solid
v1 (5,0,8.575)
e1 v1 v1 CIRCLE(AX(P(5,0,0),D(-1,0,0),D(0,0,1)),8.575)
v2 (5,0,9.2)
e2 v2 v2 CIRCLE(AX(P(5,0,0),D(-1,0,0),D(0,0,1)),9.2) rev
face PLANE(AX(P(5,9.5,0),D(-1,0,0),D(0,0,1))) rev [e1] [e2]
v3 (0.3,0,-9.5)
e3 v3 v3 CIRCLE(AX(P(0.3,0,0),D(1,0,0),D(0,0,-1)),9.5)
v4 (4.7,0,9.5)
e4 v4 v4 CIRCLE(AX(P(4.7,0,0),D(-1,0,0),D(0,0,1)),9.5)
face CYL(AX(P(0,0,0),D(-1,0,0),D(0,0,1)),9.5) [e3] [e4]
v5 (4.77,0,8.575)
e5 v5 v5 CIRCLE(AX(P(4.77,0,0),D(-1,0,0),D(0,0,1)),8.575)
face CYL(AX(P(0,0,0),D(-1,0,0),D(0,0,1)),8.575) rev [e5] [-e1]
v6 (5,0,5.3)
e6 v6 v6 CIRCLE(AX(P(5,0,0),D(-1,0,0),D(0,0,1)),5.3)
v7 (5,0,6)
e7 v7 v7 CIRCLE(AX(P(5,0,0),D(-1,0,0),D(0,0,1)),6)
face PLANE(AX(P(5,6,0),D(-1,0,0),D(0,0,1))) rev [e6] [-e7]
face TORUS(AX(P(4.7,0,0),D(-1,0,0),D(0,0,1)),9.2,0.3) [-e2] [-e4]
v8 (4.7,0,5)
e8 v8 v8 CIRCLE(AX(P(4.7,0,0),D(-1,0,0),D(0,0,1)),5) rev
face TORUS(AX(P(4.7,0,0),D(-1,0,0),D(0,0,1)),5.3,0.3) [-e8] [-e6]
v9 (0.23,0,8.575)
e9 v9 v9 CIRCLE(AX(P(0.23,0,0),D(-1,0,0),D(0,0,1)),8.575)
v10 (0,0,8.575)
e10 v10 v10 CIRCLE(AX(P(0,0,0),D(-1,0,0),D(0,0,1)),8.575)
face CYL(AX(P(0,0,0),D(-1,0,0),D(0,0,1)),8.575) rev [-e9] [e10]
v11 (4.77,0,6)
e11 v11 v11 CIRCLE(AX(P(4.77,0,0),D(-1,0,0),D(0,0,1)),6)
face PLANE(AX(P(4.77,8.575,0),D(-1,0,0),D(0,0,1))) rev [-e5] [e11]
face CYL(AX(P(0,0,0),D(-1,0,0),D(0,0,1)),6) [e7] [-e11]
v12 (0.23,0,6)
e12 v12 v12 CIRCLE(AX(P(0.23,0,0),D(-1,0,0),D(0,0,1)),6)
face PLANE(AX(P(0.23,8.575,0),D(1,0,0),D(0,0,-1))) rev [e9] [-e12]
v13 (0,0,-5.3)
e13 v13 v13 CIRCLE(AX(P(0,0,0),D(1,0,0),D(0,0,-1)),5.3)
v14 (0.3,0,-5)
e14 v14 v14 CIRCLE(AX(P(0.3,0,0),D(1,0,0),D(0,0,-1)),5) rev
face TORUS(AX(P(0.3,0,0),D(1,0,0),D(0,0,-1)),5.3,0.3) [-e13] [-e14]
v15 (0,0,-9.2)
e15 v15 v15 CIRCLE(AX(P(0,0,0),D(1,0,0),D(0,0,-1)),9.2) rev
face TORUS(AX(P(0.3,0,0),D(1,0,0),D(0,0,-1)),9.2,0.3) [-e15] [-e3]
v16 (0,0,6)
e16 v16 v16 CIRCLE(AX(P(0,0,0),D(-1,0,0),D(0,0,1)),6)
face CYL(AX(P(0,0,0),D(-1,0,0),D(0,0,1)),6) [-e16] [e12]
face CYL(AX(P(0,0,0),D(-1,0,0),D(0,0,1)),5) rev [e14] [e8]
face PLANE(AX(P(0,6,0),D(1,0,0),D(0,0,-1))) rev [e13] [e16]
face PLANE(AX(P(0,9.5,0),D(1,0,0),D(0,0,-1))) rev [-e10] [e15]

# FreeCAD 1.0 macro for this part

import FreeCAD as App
import Part
import Sketcher
from FreeCAD import Vector


def edges_at(feature, points):
    """Names of the edges that pass closest to the given points."""
    edges = feature.Shape.Edges
    near = lambda p: min(range(len(edges)), key=lambda i: edges[i].distToShape(Part.Vertex(*p))[0])
    return sorted({f"Edge{near(p) + 1}" for p in points})


def add_polygon(sketch, points):
    """Adds a closed chain of lines whose ends are joined by coincident constraints."""
    first, n = sketch.GeometryCount, len(points)
    for a, b in zip(points, points[1:] + points[:1]):
        sketch.addGeometry(Part.LineSegment(App.Vector(*a, 0), App.Vector(*b, 0)), False)
    for i in range(n):
        sketch.addConstraint(Sketcher.Constraint("Coincident", first + i, 2, first + (i + 1) % n, 1))

doc = App.newDocument("Part")
body = doc.addObject("PartDesign::Body", "Body")

sketch1 = doc.addObject("Sketcher::SketchObject", "Sketch")
body.addObject(sketch1)
sketch1.AttachmentSupport = (doc.XY_Plane, [""])
sketch1.MapMode = "FlatFace"
add_polygon(sketch1, [(0, 5), (5, 5), (5, 6), (4.77, 6), (4.77, 8.57), (5, 8.57), (5, 9.5), (0, 9.5), (0, 8.57), (0.23, 8.57), (0.23, 6), (0, 6)])
sketch1.addConstraint([
    Sketcher.Constraint("Horizontal", 0),
    Sketcher.Constraint("Vertical", 1),
    Sketcher.Constraint("Horizontal", 2),
    Sketcher.Constraint("Vertical", 3),
    Sketcher.Constraint("Horizontal", 4),
    Sketcher.Constraint("Vertical", 5),
    Sketcher.Constraint("Horizontal", 6),
    Sketcher.Constraint("Vertical", 7),
    Sketcher.Constraint("Horizontal", 8),
    Sketcher.Constraint("Vertical", 9),
    Sketcher.Constraint("Horizontal", 10),
    Sketcher.Constraint("Vertical", 11),
    Sketcher.Constraint("PointOnObject", 6, 2, -2),
    Sketcher.Constraint("PointOnObject", 10, 2, -2),
    Sketcher.Constraint("Horizontal", 4, 2, 7, 2),
    Sketcher.Constraint("Horizontal", 2, 2, 9, 2),
    Sketcher.Constraint("Vertical", 1, 2, 4, 2),
    Sketcher.Constraint("Equal", 4, 8),
    Sketcher.Constraint("DistanceX", 0, 1, 0, 2, 5.0),
    Sketcher.Constraint("DistanceY", 1, 1, 1, 2, 1.0),
    Sketcher.Constraint("DistanceY", -1, 1, 0, 2, 5.0),
    Sketcher.Constraint("DistanceX", 2, 2, 2, 1, 0.23),
    Sketcher.Constraint("DistanceY", -1, 1, 5, 2, 9.5),
    Sketcher.Constraint("DistanceY", 3, 1, 3, 2, 2.575),
])
revolution = doc.addObject("PartDesign::Revolution", "Revolution")
body.addObject(revolution)
revolution.Profile = sketch1
revolution.ReferenceAxis = (sketch1, ["H_Axis"])
revolution.Angle = 360
doc.recompute()

fillet = doc.addObject("PartDesign::Fillet", "Fillet")
body.addObject(fillet)
fillet.Base = (revolution, edges_at(revolution, [(0, 0, -9.5), (5, 0, -9.5)]))
fillet.Radius = 0.3
doc.recompute()

fillet2 = doc.addObject("PartDesign::Fillet", "Fillet001")
body.addObject(fillet2)
fillet2.Base = (fillet, edges_at(fillet, [(5, 0, -5), (0, 0, -5)]))
fillet2.Radius = 0.3

doc.recompute()
